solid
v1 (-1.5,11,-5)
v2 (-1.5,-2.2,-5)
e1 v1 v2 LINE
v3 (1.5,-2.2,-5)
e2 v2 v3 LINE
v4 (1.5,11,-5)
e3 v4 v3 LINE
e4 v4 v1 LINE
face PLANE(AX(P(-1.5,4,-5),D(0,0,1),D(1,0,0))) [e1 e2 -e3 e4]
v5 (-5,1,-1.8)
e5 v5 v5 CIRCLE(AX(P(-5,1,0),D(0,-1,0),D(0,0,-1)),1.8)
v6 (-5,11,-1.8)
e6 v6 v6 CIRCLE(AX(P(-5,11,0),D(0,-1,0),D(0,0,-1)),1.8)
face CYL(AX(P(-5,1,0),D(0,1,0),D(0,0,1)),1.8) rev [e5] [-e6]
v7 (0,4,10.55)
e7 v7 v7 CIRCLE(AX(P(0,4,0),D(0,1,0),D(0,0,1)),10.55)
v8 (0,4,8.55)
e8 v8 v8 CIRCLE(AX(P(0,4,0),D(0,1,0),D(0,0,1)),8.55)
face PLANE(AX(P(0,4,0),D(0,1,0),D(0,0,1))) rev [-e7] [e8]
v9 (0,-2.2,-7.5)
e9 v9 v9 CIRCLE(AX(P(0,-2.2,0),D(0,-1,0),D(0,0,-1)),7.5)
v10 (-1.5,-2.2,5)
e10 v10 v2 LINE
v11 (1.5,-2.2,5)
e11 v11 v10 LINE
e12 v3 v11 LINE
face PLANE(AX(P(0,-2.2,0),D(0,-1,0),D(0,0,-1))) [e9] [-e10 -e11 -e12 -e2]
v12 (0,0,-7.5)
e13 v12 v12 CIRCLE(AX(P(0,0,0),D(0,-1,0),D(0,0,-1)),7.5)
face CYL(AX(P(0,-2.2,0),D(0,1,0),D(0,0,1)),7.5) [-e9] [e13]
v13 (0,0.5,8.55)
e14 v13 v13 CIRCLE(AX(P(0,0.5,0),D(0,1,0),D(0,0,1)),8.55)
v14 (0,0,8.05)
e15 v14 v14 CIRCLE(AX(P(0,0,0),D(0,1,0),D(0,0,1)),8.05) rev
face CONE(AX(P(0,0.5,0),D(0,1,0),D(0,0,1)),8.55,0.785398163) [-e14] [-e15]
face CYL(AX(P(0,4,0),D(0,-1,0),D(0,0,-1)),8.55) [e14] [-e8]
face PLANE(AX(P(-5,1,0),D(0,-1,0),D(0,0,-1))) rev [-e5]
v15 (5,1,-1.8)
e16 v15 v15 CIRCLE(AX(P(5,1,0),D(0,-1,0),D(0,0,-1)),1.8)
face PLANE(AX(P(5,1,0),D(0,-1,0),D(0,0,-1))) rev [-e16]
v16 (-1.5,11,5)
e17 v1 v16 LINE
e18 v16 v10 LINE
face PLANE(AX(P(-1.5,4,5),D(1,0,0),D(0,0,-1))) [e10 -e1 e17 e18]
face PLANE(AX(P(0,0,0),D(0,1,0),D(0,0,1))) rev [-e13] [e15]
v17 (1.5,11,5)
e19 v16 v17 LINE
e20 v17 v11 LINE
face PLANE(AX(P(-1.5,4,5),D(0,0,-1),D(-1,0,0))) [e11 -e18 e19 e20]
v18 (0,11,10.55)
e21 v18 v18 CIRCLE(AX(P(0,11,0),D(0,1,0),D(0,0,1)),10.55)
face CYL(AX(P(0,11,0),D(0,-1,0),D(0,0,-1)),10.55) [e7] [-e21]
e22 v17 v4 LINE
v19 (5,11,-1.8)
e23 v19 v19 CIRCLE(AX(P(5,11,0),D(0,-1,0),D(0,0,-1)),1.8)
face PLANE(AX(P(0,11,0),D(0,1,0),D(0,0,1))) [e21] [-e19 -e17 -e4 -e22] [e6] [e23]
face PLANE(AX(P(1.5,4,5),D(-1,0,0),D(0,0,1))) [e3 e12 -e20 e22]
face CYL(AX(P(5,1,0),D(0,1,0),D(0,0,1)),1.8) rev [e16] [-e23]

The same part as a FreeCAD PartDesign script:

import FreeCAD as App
import Part
import Sketcher
from FreeCAD import Vector
Q = App.Units.Quantity


def edges_at(feature, points):
    """Names of the edges that pass closest to the given points."""
    edges = feature.Shape.Edges
    near = lambda p: min(range(len(edges)), key=lambda i: edges[i].distToShape(Part.Vertex(*p))[0])
    return sorted({f"Edge{near(p) + 1}" for p in points})

doc = App.newDocument("Part")
body = doc.addObject("PartDesign::Body", "Body")

# Sketch on XZ plane
sketch1 = doc.addObject("Sketcher::SketchObject", "Sketch")
body.addObject(sketch1)
sketch1.AttachmentSupport = (doc.XZ_Plane, [""])
sketch1.MapMode = "FlatFace"
sketch1.addGeometry([
    Part.Circle(Vector(0, 0, 0), Vector(0, 0, 1), 8.55),  # 0
    Part.LineSegment(Vector(1.5, 5, 0), Vector(-1.5, 5, 0)),  # 1
    Part.LineSegment(Vector(-1.5, 5, 0), Vector(-1.5, -5, 0)),  # 2
    Part.LineSegment(Vector(-1.5, -5, 0), Vector(1.5, -5, 0)),  # 3
    Part.LineSegment(Vector(1.5, -5, 0), Vector(1.5, 5, 0)),  # 4
], False)
sketch1.addConstraint([
    Sketcher.Constraint("Coincident", 1, 2, 2, 1),
    Sketcher.Constraint("Coincident", 2, 2, 3, 1),
    Sketcher.Constraint("Coincident", 3, 2, 4, 1),
    Sketcher.Constraint("Coincident", 4, 2, 1, 1),
    Sketcher.Constraint("Horizontal", 1),
    Sketcher.Constraint("Vertical", 2),
    Sketcher.Constraint("Horizontal", 3),
    Sketcher.Constraint("Vertical", 4),
    Sketcher.Constraint("Coincident", 0, 3, -1, 1),
    Sketcher.Constraint("Symmetric", 1, 2, 3, 2, -1, 1),
    Sketcher.Constraint("Diameter", 0, Q("17.1 mm")),
    Sketcher.Constraint("DistanceX", 1, 2, 1, 1, Q("3 mm")),
    Sketcher.Constraint("DistanceY", 2, 2, 2, 1, Q("10 mm")),
])
pad1 = doc.addObject("PartDesign::Pad", "Pad")
body.addObject(pad1)
pad1.Profile = sketch1
pad1.Length = 4
pad1.Reversed = True

# Sketch on XZ plane
sketch2 = doc.addObject("Sketcher::SketchObject", "Sketch001")
body.addObject(sketch2)
sketch2.AttachmentSupport = (doc.XZ_Plane, [""])
sketch2.MapMode = "FlatFace"
sketch2.AttachmentOffset = App.Placement(Vector(0, 0, -4), App.Rotation())
sketch2.addGeometry([
    Part.Circle(Vector(0, 0, 0), Vector(0, 0, 1), 10.55),  # 0
    Part.LineSegment(Vector(1.5, 5, 0), Vector(-1.5, 5, 0)),  # 1
    Part.LineSegment(Vector(-1.5, 5, 0), Vector(-1.5, -5, 0)),  # 2
    Part.LineSegment(Vector(-1.5, -5, 0), Vector(1.5, -5, 0)),  # 3
    Part.LineSegment(Vector(1.5, -5, 0), Vector(1.5, 5, 0)),  # 4
], False)
sketch2.addConstraint([
    Sketcher.Constraint("Coincident", 1, 2, 2, 1),
    Sketcher.Constraint("Coincident", 2, 2, 3, 1),
    Sketcher.Constraint("Coincident", 3, 2, 4, 1),
    Sketcher.Constraint("Coincident", 4, 2, 1, 1),
    Sketcher.Constraint("Horizontal", 1),
    Sketcher.Constraint("Vertical", 2),
    Sketcher.Constraint("Horizontal", 3),
    Sketcher.Constraint("Vertical", 4),
    Sketcher.Constraint("Coincident", 0, 3, -1, 1),
    Sketcher.Constraint("Symmetric", 1, 2, 3, 2, -1, 1),
    Sketcher.Constraint("Diameter", 0, Q("21.1 mm")),
    Sketcher.Constraint("DistanceX", 1, 2, 1, 1, Q("3 mm")),
    Sketcher.Constraint("DistanceY", 2, 2, 2, 1, Q("10 mm")),
])
pad2 = doc.addObject("PartDesign::Pad", "Pad001")
body.addObject(pad2)
pad2.Profile = sketch2
pad2.Length = 7
pad2.Reversed = True

# Sketch on XZ plane
sketch3 = doc.addObject("Sketcher::SketchObject", "Sketch002")
body.addObject(sketch3)
sketch3.AttachmentSupport = (doc.XZ_Plane, [""])
sketch3.MapMode = "FlatFace"
sketch3.addGeometry([
    Part.Circle(Vector(0, 0, 0), Vector(0, 0, 1), 7.5),  # 0
    Part.LineSegment(Vector(1.5, -5, 0), Vector(-1.5, -5, 0)),  # 1
    Part.LineSegment(Vector(-1.5, -5, 0), Vector(-1.5, 5, 0)),  # 2
    Part.LineSegment(Vector(-1.5, 5, 0), Vector(1.5, 5, 0)),  # 3
    Part.LineSegment(Vector(1.5, 5, 0), Vector(1.5, -5, 0)),  # 4
], False)
sketch3.addConstraint([
    Sketcher.Constraint("Coincident", 1, 2, 2, 1),
    Sketcher.Constraint("Coincident", 2, 2, 3, 1),
    Sketcher.Constraint("Coincident", 3, 2, 4, 1),
    Sketcher.Constraint("Coincident", 4, 2, 1, 1),
    Sketcher.Constraint("Horizontal", 1),
    Sketcher.Constraint("Vertical", 2),
    Sketcher.Constraint("Horizontal", 3),
    Sketcher.Constraint("Vertical", 4),
    Sketcher.Constraint("Coincident", 0, 3, -1, 1),
    Sketcher.Constraint("Symmetric", 1, 2, 3, 2, -1, 1),
    Sketcher.Constraint("Diameter", 0, Q("15 mm")),
    Sketcher.Constraint("DistanceX", 1, 2, 1, 1, Q("3 mm")),
    Sketcher.Constraint("DistanceY", 2, 1, 2, 2, Q("10 mm")),
])
pad3 = doc.addObject("PartDesign::Pad", "Pad002")
body.addObject(pad3)
pad3.Profile = sketch3
pad3.Length = 2.2
doc.recompute()

chamfer = doc.addObject("PartDesign::Chamfer", "Chamfer")
body.addObject(chamfer)
chamfer.Base = (pad3, edges_at(pad3, [(-8.55, 0, 0)]))
chamfer.Size = 0.5

# Sketch on XZ plane
sketch4 = doc.addObject("Sketcher::SketchObject", "Sketch003")
body.addObject(sketch4)
sketch4.AttachmentSupport = (doc.XZ_Plane, [""])
sketch4.MapMode = "FlatFace"
sketch4.AttachmentOffset = App.Placement(Vector(0, 0, -11), App.Rotation())
sketch4.addGeometry([
    Part.Circle(Vector(-5, 0, 0), Vector(0, 0, 1), 1.8),
    Part.Circle(Vector(5, 0, 0), Vector(0, 0, 1), 1.8),
], False)
sketch4.addConstraint([
    Sketcher.Constraint("Equal", 0, 1),
    Sketcher.Constraint("Symmetric", 0, 3, 1, 3, -1, 1),
    Sketcher.Constraint("PointOnObject", 0, 3, -1),
    Sketcher.Constraint("Diameter", 0, Q("3.6 mm")),
    Sketcher.Constraint("DistanceX", 0, 3, -1, 1, Q("5 mm")),
])
pocket1 = doc.addObject("PartDesign::Pocket", "Pocket")
body.addObject(pocket1)
pocket1.Profile = sketch4
pocket1.Length = 10
pocket1.Reversed = True

doc.recompute()
